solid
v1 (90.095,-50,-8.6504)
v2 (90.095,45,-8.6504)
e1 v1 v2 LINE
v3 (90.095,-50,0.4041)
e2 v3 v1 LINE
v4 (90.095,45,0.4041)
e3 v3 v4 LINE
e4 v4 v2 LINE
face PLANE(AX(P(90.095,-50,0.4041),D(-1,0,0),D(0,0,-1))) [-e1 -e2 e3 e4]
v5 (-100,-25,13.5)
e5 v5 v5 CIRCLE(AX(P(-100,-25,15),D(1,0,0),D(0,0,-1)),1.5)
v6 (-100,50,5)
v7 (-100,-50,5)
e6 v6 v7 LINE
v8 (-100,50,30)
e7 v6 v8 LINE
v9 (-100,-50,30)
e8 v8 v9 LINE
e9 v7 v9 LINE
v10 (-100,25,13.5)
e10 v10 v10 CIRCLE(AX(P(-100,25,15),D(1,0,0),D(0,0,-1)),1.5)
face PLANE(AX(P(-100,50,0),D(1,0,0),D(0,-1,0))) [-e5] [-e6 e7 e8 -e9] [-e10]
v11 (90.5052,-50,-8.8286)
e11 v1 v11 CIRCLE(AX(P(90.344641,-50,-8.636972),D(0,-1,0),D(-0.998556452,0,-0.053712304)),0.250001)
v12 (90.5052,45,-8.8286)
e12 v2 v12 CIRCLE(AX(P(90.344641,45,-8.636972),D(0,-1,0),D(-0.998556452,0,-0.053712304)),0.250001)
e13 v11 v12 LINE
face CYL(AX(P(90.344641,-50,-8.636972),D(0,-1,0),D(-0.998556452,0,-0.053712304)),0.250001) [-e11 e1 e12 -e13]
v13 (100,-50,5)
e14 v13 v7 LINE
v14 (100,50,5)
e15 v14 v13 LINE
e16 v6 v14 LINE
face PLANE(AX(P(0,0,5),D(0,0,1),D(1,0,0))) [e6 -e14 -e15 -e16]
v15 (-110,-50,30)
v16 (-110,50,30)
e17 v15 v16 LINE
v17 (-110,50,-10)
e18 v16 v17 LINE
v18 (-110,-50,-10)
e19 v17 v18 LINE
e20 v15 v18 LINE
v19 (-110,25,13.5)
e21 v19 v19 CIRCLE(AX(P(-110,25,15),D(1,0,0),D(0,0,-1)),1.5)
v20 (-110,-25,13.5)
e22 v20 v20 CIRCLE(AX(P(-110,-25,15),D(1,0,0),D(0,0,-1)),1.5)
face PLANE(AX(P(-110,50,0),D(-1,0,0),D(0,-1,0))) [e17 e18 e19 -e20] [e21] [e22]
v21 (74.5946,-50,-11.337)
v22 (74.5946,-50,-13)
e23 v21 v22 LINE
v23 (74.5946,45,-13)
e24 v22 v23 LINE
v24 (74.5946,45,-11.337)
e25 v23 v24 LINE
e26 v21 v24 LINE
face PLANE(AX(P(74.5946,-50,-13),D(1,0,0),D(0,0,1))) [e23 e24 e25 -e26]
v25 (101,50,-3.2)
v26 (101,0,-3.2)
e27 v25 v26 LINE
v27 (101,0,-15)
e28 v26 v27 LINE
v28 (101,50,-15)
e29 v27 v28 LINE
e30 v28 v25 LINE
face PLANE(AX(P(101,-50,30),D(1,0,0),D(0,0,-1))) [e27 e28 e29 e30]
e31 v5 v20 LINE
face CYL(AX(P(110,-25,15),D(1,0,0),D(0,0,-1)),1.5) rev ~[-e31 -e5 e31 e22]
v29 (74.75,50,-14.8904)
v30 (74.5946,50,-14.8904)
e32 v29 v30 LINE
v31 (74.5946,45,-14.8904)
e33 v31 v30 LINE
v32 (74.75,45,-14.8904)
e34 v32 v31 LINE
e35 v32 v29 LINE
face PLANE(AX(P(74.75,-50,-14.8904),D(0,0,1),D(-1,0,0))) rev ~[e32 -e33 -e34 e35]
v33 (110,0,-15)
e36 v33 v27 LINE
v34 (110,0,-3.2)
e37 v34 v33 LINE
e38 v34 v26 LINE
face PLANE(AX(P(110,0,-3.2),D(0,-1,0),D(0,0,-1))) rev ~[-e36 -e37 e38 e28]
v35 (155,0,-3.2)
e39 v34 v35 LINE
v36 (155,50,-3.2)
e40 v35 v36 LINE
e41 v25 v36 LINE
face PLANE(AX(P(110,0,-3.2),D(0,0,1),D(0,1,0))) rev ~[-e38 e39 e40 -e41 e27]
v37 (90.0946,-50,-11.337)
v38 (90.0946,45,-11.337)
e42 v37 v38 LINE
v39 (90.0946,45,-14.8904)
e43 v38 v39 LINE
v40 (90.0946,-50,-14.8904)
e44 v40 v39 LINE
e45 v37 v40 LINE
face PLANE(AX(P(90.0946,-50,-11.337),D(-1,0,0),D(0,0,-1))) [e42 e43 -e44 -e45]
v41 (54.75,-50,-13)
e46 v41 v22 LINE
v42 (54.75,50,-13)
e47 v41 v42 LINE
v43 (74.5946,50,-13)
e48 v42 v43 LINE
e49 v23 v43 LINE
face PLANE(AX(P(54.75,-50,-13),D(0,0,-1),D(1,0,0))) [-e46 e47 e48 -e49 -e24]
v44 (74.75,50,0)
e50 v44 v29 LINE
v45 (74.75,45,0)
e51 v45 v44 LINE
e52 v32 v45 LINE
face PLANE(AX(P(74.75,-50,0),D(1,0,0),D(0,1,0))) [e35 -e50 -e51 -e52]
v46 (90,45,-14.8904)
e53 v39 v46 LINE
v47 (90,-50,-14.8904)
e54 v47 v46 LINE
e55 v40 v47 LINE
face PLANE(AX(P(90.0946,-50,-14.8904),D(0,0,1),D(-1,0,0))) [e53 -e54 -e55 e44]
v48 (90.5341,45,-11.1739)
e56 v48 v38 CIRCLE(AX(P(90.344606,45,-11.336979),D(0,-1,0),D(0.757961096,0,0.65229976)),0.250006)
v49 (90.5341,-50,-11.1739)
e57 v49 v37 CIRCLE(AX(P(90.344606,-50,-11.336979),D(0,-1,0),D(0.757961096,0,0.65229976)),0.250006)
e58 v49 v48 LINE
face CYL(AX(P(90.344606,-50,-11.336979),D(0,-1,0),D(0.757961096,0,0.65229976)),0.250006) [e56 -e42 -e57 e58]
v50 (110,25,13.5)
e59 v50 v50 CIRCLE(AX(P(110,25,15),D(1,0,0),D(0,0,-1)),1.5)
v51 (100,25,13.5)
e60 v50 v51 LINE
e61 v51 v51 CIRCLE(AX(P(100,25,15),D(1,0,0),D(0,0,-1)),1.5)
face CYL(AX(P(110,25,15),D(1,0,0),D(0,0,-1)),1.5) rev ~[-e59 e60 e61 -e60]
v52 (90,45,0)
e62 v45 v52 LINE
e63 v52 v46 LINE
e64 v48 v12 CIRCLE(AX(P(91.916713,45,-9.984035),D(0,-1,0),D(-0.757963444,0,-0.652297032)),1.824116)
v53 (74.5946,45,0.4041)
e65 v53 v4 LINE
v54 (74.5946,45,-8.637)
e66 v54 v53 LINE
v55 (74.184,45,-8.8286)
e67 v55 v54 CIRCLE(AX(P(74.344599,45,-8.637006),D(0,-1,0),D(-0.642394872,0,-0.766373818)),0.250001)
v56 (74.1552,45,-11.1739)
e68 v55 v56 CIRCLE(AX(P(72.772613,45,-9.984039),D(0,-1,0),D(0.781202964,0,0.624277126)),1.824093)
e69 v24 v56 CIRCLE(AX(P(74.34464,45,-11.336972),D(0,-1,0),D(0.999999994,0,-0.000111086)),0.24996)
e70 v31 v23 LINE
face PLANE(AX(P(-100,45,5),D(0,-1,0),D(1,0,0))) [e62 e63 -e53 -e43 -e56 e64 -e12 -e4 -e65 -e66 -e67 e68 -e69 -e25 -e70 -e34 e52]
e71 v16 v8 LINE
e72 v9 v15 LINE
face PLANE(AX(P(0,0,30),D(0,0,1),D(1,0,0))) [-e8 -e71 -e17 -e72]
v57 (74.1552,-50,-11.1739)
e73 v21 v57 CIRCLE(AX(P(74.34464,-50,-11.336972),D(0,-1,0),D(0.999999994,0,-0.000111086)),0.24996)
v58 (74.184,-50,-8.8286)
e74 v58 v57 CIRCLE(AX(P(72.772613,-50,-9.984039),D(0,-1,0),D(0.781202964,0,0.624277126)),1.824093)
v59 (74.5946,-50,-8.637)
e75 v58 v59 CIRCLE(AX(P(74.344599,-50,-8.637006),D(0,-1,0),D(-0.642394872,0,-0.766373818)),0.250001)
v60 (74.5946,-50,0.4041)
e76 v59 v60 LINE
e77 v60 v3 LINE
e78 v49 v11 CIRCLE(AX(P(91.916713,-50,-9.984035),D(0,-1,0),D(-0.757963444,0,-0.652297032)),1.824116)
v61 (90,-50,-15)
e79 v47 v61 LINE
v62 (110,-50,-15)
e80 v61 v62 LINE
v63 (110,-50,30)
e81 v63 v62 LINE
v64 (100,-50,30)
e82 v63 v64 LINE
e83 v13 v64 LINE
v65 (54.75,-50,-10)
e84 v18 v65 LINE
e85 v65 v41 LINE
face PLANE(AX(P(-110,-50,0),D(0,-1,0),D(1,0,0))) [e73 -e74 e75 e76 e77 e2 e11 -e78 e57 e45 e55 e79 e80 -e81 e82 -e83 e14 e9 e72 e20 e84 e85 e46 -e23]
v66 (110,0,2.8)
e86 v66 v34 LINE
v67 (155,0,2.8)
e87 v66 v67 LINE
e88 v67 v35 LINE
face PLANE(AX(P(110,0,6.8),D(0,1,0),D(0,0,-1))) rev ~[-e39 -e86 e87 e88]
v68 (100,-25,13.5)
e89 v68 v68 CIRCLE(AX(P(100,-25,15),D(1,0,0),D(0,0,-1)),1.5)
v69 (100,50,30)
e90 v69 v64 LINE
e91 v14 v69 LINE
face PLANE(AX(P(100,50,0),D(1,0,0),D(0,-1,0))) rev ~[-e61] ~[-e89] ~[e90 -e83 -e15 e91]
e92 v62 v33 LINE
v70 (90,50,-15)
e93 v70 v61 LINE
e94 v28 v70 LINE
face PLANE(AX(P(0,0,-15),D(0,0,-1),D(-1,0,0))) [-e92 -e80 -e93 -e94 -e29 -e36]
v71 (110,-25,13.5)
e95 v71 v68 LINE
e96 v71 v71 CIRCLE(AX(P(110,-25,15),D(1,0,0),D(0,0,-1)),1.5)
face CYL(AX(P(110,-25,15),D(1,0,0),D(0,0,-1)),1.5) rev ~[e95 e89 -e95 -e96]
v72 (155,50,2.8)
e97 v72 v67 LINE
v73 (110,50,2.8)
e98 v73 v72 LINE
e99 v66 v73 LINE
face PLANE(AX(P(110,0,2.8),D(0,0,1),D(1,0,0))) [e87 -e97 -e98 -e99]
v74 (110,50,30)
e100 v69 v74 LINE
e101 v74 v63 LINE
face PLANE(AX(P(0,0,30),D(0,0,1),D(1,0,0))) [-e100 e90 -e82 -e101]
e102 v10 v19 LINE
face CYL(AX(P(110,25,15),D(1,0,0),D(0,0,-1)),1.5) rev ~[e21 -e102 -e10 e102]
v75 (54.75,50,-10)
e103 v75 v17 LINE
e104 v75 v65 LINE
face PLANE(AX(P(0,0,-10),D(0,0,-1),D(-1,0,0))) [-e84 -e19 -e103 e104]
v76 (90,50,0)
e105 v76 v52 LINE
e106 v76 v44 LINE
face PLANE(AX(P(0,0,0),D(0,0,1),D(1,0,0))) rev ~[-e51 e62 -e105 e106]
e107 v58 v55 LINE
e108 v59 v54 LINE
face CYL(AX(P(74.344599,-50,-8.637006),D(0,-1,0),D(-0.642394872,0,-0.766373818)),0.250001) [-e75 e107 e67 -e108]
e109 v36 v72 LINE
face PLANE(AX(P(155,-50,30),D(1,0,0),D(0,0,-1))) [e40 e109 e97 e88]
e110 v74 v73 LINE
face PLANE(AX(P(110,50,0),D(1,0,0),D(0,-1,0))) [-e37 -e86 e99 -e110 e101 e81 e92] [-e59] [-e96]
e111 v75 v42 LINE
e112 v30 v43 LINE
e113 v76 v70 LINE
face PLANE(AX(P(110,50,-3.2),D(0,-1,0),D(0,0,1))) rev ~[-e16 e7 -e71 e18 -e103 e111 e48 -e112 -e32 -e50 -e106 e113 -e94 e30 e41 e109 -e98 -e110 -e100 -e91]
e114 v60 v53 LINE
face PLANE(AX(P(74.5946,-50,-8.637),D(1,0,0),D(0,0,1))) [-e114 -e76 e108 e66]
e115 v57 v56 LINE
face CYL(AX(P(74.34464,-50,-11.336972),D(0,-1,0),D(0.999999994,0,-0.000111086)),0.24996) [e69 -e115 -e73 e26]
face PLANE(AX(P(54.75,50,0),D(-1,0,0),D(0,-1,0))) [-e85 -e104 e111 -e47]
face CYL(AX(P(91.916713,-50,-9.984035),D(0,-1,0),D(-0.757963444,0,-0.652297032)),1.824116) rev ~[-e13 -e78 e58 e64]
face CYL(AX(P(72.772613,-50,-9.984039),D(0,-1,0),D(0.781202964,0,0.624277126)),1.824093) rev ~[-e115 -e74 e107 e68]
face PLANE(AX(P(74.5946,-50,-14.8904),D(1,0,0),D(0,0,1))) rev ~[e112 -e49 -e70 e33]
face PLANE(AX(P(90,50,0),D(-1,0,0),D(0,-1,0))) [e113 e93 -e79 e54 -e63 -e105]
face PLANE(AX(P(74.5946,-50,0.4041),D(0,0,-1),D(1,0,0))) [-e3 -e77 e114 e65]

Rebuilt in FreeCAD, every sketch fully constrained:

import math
import FreeCAD as App
import Part
import Sketcher

doc = App.newDocument("Part")
params = doc.addObject("Spreadsheet::Sheet", "Params")
for row, (alias, value) in enumerate([
    ("sketch1_height", "100 mm"),
    ("pad1_length", "5 mm"),
    ("sketch2_width", "10 mm"),
    ("sketch2_height", "100 mm"),
    ("pad2_length", "30 mm"),
    ("sketch3_diameter", "3 mm"),
    ("pocket1_length", "300 mm"),
    ("sketch4_width", "20 mm"),
    ("sketch4_height", "100 mm"),
    ("pad3_length", "15 mm"),
    ("sketch5_radius", "0.25 mm"),
    ("sketch5_width", "15.25 mm"),
    ("pocket2_length", "95 mm"),
    ("sketch6_height", "100 mm"),
    ("sketch6_width", "164.75 mm"),
    ("pad4_length", "10 mm"),
    ("sketch7_height", "2 mm"),
    ("sketch7_width", "20 mm"),
    ("pocket3_length", "100 mm"),
    ("sketch8_height", "11.8 mm"),
    ("sketch8_width", "50 mm"),
    ("pocket4_length", "9 mm"),
    ("sketch9_height", "10 mm"),
    ("sketch9_width", "50 mm"),
    ("pad5_length", "45 mm"),
    ("sketch10_width", "45 mm"),
    ("sketch10_height", "50 mm"),
    ("pocket5_length", "4 mm"),
], start=1):
    params.set(f"A{row}", alias)
    params.set(f"B{row}", "=" + value)
    params.setAlias(f"B{row}", alias)

body = doc.addObject("PartDesign::Body", "Body")

# Sketch on XY plane
sketch1 = body.newObject("Sketcher::SketchObject", "Sketch")
sketch1.AttachmentSupport = (doc.getObject("XY_Plane"), [""])
sketch1.MapMode = "FlatFace"
sketch1.addGeometry(Part.LineSegment(App.Vector(100, 50, 0), App.Vector(-100, 50, 0)), False)
sketch1.addGeometry(Part.LineSegment(App.Vector(-100, 50, 0), App.Vector(-100, -50, 0)), False)
sketch1.addGeometry(Part.LineSegment(App.Vector(-100, -50, 0), App.Vector(100, -50, 0)), False)
sketch1.addGeometry(Part.LineSegment(App.Vector(100, -50, 0), App.Vector(100, 50, 0)), False)
sketch1.addConstraint(Sketcher.Constraint("Coincident", 0, 2, 1, 1))
sketch1.addConstraint(Sketcher.Constraint("Coincident", 1, 2, 2, 1))
sketch1.addConstraint(Sketcher.Constraint("Coincident", 2, 2, 3, 1))
sketch1.addConstraint(Sketcher.Constraint("Coincident", 3, 2, 0, 1))
sketch1.addConstraint(Sketcher.Constraint("Horizontal", 0))
sketch1.addConstraint(Sketcher.Constraint("Vertical", 1))
sketch1.addConstraint(Sketcher.Constraint("Horizontal", 2))
sketch1.addConstraint(Sketcher.Constraint("Vertical", 3))
sketch1.addConstraint(Sketcher.Constraint("Symmetric", 0, 2, 2, 2, -1, 1))
sketch1.addConstraint(Sketcher.Constraint("DistanceY", 1, 2, 1, 1, 100.0))
sketch1.addConstraint(Sketcher.Constraint("DistanceX", 0, 2, -1, 1, 100.0))
sketch1.setExpression("Constraints[9]", "Params.sketch1_height")
pad1 = body.newObject("PartDesign::Pad", "Pad")
pad1.Profile = sketch1
pad1.setExpression("Length", "Params.pad1_length")

# Sketch on XY plane
sketch2 = body.newObject("Sketcher::SketchObject", "Sketch001")
sketch2.AttachmentSupport = (doc.getObject("XY_Plane"), [""])
sketch2.MapMode = "FlatFace"
sketch2.addGeometry(Part.LineSegment(App.Vector(-100, 50, 0), App.Vector(-110, 50, 0)), False)
sketch2.addGeometry(Part.LineSegment(App.Vector(-110, 50, 0), App.Vector(-110, -50, 0)), False)
sketch2.addGeometry(Part.LineSegment(App.Vector(-110, -50, 0), App.Vector(-100, -50, 0)), False)
sketch2.addGeometry(Part.LineSegment(App.Vector(-100, -50, 0), App.Vector(-100, 50, 0)), False)
sketch2.addGeometry(Part.LineSegment(App.Vector(110, 50, 0), App.Vector(100, 50, 0)), False)
sketch2.addGeometry(Part.LineSegment(App.Vector(100, 50, 0), App.Vector(100, -50, 0)), False)
sketch2.addGeometry(Part.LineSegment(App.Vector(100, -50, 0), App.Vector(110, -50, 0)), False)
sketch2.addGeometry(Part.LineSegment(App.Vector(110, -50, 0), App.Vector(110, 50, 0)), False)
sketch2.addConstraint(Sketcher.Constraint("Coincident", 0, 2, 1, 1))
sketch2.addConstraint(Sketcher.Constraint("Coincident", 1, 2, 2, 1))
sketch2.addConstraint(Sketcher.Constraint("Coincident", 2, 2, 3, 1))
sketch2.addConstraint(Sketcher.Constraint("Coincident", 3, 2, 0, 1))
sketch2.addConstraint(Sketcher.Constraint("Coincident", 4, 2, 5, 1))
sketch2.addConstraint(Sketcher.Constraint("Coincident", 5, 2, 6, 1))
sketch2.addConstraint(Sketcher.Constraint("Coincident", 6, 2, 7, 1))
sketch2.addConstraint(Sketcher.Constraint("Coincident", 7, 2, 4, 1))
sketch2.addConstraint(Sketcher.Constraint("Horizontal", 0))
sketch2.addConstraint(Sketcher.Constraint("Vertical", 1))
sketch2.addConstraint(Sketcher.Constraint("Horizontal", 2))
sketch2.addConstraint(Sketcher.Constraint("Vertical", 3))
sketch2.addConstraint(Sketcher.Constraint("Horizontal", 4))
sketch2.addConstraint(Sketcher.Constraint("Vertical", 5))
sketch2.addConstraint(Sketcher.Constraint("Horizontal", 6))
sketch2.addConstraint(Sketcher.Constraint("Vertical", 7))
sketch2.addConstraint(Sketcher.Constraint("Symmetric", 2, 2, 4, 2, -1, 1))
sketch2.addConstraint(Sketcher.Constraint("Symmetric", 0, 2, 6, 2, -1, 1))
sketch2.addConstraint(Sketcher.Constraint("Horizontal", 3, 2, 4, 2))
sketch2.addConstraint(Sketcher.Constraint("DistanceX", 0, 2, 0, 1, 10.0))
sketch2.addConstraint(Sketcher.Constraint("DistanceY", 1, 2, 1, 1, 100.0))
sketch2.addConstraint(Sketcher.Constraint("DistanceX", 2, 2, -1, 1, 100.0))
sketch2.setExpression("Constraints[19]", "Params.sketch2_width")
sketch2.setExpression("Constraints[20]", "Params.sketch2_height")
pad2 = body.newObject("PartDesign::Pad", "Pad001")
pad2.Profile = sketch2
pad2.setExpression("Length", "Params.pad2_length")

# Sketch on YZ plane
sketch3 = body.newObject("Sketcher::SketchObject", "Sketch002")
sketch3.AttachmentSupport = (doc.getObject("YZ_Plane"), [""])
sketch3.MapMode = "FlatFace"
sketch3.AttachmentOffset = App.Placement(App.Vector(0, 0, 110), App.Rotation())
sketch3.addGeometry(Part.Circle(App.Vector(25, 15, 0), App.Vector(0, 0, 1), 1.5), False)
sketch3.addGeometry(Part.Circle(App.Vector(-25, 15, 0), App.Vector(0, 0, 1), 1.5), False)
sketch3.addConstraint(Sketcher.Constraint("Equal", 0, 1))
sketch3.addConstraint(Sketcher.Constraint("Symmetric", 0, 3, 1, 3, -2))
sketch3.addConstraint(Sketcher.Constraint("Diameter", 0, 3.0))
sketch3.addConstraint(Sketcher.Constraint("DistanceX", -1, 1, 0, 3, 25.0))
sketch3.addConstraint(Sketcher.Constraint("DistanceY", -1, 1, 0, 3, 15.0))
sketch3.setExpression("Constraints[2]", "Params.sketch3_diameter")
pocket1 = body.newObject("PartDesign::Pocket", "Pocket")
pocket1.Profile = sketch3
pocket1.setExpression("Length", "Params.pocket1_length")

# Sketch on XY plane
sketch4 = body.newObject("Sketcher::SketchObject", "Sketch003")
sketch4.AttachmentSupport = (doc.getObject("XY_Plane"), [""])
sketch4.MapMode = "FlatFace"
sketch4.addGeometry(Part.LineSegment(App.Vector(90, 50, 0), App.Vector(110, 50, 0)), False)
sketch4.addGeometry(Part.LineSegment(App.Vector(110, 50, 0), App.Vector(110, -50, 0)), False)
sketch4.addGeometry(Part.LineSegment(App.Vector(110, -50, 0), App.Vector(90, -50, 0)), False)
sketch4.addGeometry(Part.LineSegment(App.Vector(90, -50, 0), App.Vector(90, 50, 0)), False)
sketch4.addGeometry(Part.LineSegment(App.Vector(54.75, 50, 0), App.Vector(74.75, 50, 0)), False)
sketch4.addGeometry(Part.LineSegment(App.Vector(74.75, 50, 0), App.Vector(74.75, -50, 0)), False)
sketch4.addGeometry(Part.LineSegment(App.Vector(74.75, -50, 0), App.Vector(54.75, -50, 0)), False)
sketch4.addGeometry(Part.LineSegment(App.Vector(54.75, -50, 0), App.Vector(54.75, 50, 0)), False)
sketch4.addConstraint(Sketcher.Constraint("Coincident", 0, 2, 1, 1))
sketch4.addConstraint(Sketcher.Constraint("Coincident", 1, 2, 2, 1))
sketch4.addConstraint(Sketcher.Constraint("Coincident", 2, 2, 3, 1))
sketch4.addConstraint(Sketcher.Constraint("Coincident", 3, 2, 0, 1))
sketch4.addConstraint(Sketcher.Constraint("Coincident", 4, 2, 5, 1))
sketch4.addConstraint(Sketcher.Constraint("Coincident", 5, 2, 6, 1))
sketch4.addConstraint(Sketcher.Constraint("Coincident", 6, 2, 7, 1))
sketch4.addConstraint(Sketcher.Constraint("Coincident", 7, 2, 4, 1))
sketch4.addConstraint(Sketcher.Constraint("Horizontal", 0))
sketch4.addConstraint(Sketcher.Constraint("Vertical", 1))
sketch4.addConstraint(Sketcher.Constraint("Horizontal", 2))
sketch4.addConstraint(Sketcher.Constraint("Vertical", 3))
sketch4.addConstraint(Sketcher.Constraint("Horizontal", 4))
sketch4.addConstraint(Sketcher.Constraint("Vertical", 5))
sketch4.addConstraint(Sketcher.Constraint("Horizontal", 6))
sketch4.addConstraint(Sketcher.Constraint("Vertical", 7))
sketch4.addConstraint(Sketcher.Constraint("Horizontal", 3, 2, 4, 2))
sketch4.addConstraint(Sketcher.Constraint("Horizontal", 2, 2, 5, 2))
sketch4.addConstraint(Sketcher.Constraint("Equal", 2, 4))
sketch4.addConstraint(Sketcher.Constraint("DistanceX", 0, 1, 0, 2, 20.0))
sketch4.addConstraint(Sketcher.Constraint("DistanceY", 1, 2, 1, 1, 100.0))
sketch4.addConstraint(Sketcher.Constraint("DistanceX", 4, 2, 3, 2, 15.25))
sketch4.addConstraint(Sketcher.Constraint("DistanceX", -1, 1, 0, 2, 110.0))
sketch4.addConstraint(Sketcher.Constraint("DistanceY", -1, 1, 0, 2, 50.0))
sketch4.setExpression("Constraints[19]", "Params.sketch4_width")
sketch4.setExpression("Constraints[20]", "Params.sketch4_height")
pad3 = body.newObject("PartDesign::Pad", "Pad002")
pad3.Profile = sketch4
pad3.setExpression("Length", "Params.pad3_length")
pad3.Reversed = True

# Sketch on XZ plane
sketch5 = body.newObject("Sketcher::SketchObject", "Sketch004")
sketch5.AttachmentSupport = (doc.getObject("XZ_Plane"), [""])
sketch5.MapMode = "FlatFace"
sketch5.AttachmentOffset = App.Placement(App.Vector(0, 0, 50), App.Rotation())
sketch5.addGeometry(Part.LineSegment(App.Vector(74.75, 0, 0), App.Vector(90, 0, 0)), False)
sketch5.addGeometry(Part.LineSegment(App.Vector(90, 0, 0), App.Vector(90, -14.8904, 0)), False)
sketch5.addGeometry(Part.LineSegment(App.Vector(90, -14.8904, 0), App.Vector(90.0946, -14.8904, 0)), False)
sketch5.addGeometry(Part.LineSegment(App.Vector(90.0946, -14.8904, 0), App.Vector(90.0946, -11.337, 0)), False)
sketch5.addGeometry(Part.ArcOfCircle(Part.Circle(App.Vector(90.3446, -11.337, 0), App.Vector(0, 0, 1), 0.250024), math.radians(40.718118), math.radians(180)), False)
sketch5.addGeometry(Part.ArcOfCircle(Part.Circle(App.Vector(91.9167, -9.984, 0), App.Vector(0, 0, 1), 1.824128), math.radians(-139.283893), math.radians(140.697554)), False)
sketch5.addGeometry(Part.ArcOfCircle(Part.Circle(App.Vector(90.3446, -8.637, 0), App.Vector(0, 0, 1), 0.249959), math.radians(-176.926975), math.radians(-50.030107)), False)
sketch5.addGeometry(Part.LineSegment(App.Vector(90.095, -8.6504, 0), App.Vector(90.095, 0.4041, 0)), False)
sketch5.addGeometry(Part.LineSegment(App.Vector(90.095, 0.4041, 0), App.Vector(74.5946, 0.4041, 0)), False)
sketch5.addGeometry(Part.LineSegment(App.Vector(74.5946, 0.4041, 0), App.Vector(74.5946, -8.637, 0)), False)
sketch5.addGeometry(Part.ArcOfCircle(Part.Circle(App.Vector(74.3446, -8.637, 0), App.Vector(0, 0, 1), 0.250006), math.radians(-129.969893), math.radians(0)), False)
sketch5.addGeometry(Part.ArcOfCircle(Part.Circle(App.Vector(72.7726, -9.984, 0), App.Vector(0, 0, 1), 1.824079), math.radians(39.304436), math.radians(319.283893)), False)
sketch5.addGeometry(Part.ArcOfCircle(Part.Circle(App.Vector(74.3446, -11.337, 0), App.Vector(0, 0, 1), 0.25), math.radians(0), math.radians(139.266928)), False)
sketch5.addGeometry(Part.LineSegment(App.Vector(74.5946, -11.337, 0), App.Vector(74.5946, -14.8904, 0)), False)
sketch5.addGeometry(Part.LineSegment(App.Vector(74.5946, -14.8904, 0), App.Vector(74.75, -14.8904, 0)), False)
sketch5.addGeometry(Part.LineSegment(App.Vector(74.75, -14.8904, 0), App.Vector(74.75, 0, 0)), False)
sketch5.addConstraint(Sketcher.Constraint("Coincident", 0, 2, 1, 1))
sketch5.addConstraint(Sketcher.Constraint("Coincident", 1, 2, 2, 1))
sketch5.addConstraint(Sketcher.Constraint("Coincident", 2, 2, 3, 1))
sketch5.addConstraint(Sketcher.Constraint("Tangent", 3, 2, 4, 2))
sketch5.addConstraint(Sketcher.Constraint("Tangent", 4, 1, 5, 1))
sketch5.addConstraint(Sketcher.Constraint("Coincident", 5, 2, 6, 2))
sketch5.addConstraint(Sketcher.Constraint("Coincident", 6, 1, 7, 1))
sketch5.addConstraint(Sketcher.Constraint("Coincident", 7, 2, 8, 1))
sketch5.addConstraint(Sketcher.Constraint("Coincident", 8, 2, 9, 1))
sketch5.addConstraint(Sketcher.Constraint("Tangent", 9, 2, 10, 2))
sketch5.addConstraint(Sketcher.Constraint("Coincident", 10, 1, 11, 1))
sketch5.addConstraint(Sketcher.Constraint("Tangent", 11, 2, 12, 2))
sketch5.addConstraint(Sketcher.Constraint("Tangent", 12, 1, 13, 1))
sketch5.addConstraint(Sketcher.Constraint("Coincident", 13, 2, 14, 1))
sketch5.addConstraint(Sketcher.Constraint("Coincident", 14, 2, 15, 1))
sketch5.addConstraint(Sketcher.Constraint("Coincident", 15, 2, 0, 1))
sketch5.addConstraint(Sketcher.Constraint("Horizontal", 0))
sketch5.addConstraint(Sketcher.Constraint("Vertical", 1))
sketch5.addConstraint(Sketcher.Constraint("Horizontal", 2))
sketch5.addConstraint(Sketcher.Constraint("Vertical", 3))
sketch5.addConstraint(Sketcher.Constraint("Vertical", 7))
sketch5.addConstraint(Sketcher.Constraint("Horizontal", 8))
sketch5.addConstraint(Sketcher.Constraint("Vertical", 9))
sketch5.addConstraint(Sketcher.Constraint("Vertical", 13))
sketch5.addConstraint(Sketcher.Constraint("Horizontal", 14))
sketch5.addConstraint(Sketcher.Constraint("Vertical", 15))
sketch5.addConstraint(Sketcher.Constraint("Equal", 4, 6))
sketch5.addConstraint(Sketcher.Constraint("Equal", 6, 10))
sketch5.addConstraint(Sketcher.Constraint("Equal", 5, 11))
sketch5.addConstraint(Sketcher.Constraint("Equal", 10, 12))
sketch5.addConstraint(Sketcher.Constraint("PointOnObject", 0, 2, -1))
sketch5.addConstraint(Sketcher.Constraint("Horizontal", 6, 3, 10, 3))
sketch5.addConstraint(Sketcher.Constraint("Horizontal", 5, 3, 11, 3))
sketch5.addConstraint(Sketcher.Constraint("Horizontal", 4, 3, 12, 3))
sketch5.addConstraint(Sketcher.Constraint("Horizontal", 5, 2, 10, 1))
sketch5.addConstraint(Sketcher.Constraint("Horizontal", 2, 2, 13, 2))
sketch5.addConstraint(Sketcher.Constraint("Vertical", 4, 3, 6, 3))
sketch5.addConstraint(Sketcher.Constraint("Radius", 4, 0.25))
sketch5.addConstraint(Sketcher.Constraint("DistanceX", -1, 1, 0, 2, 90.0))
sketch5.addConstraint(Sketcher.Constraint("Radius", 11, 1.824))
sketch5.addConstraint(Sketcher.Constraint("DistanceX", 10, 3, 6, 3, 16.0))
sketch5.addConstraint(Sketcher.Constraint("DistanceX", 0, 1, 0, 2, 15.25))
sketch5.addConstraint(Sketcher.Constraint("DistanceY", 4, 3, 6, 3, 2.7))
sketch5.addConstraint(Sketcher.Constraint("DistanceY", 9, 2, 9, 1, 9.041))
sketch5.addConstraint(Sketcher.Constraint("DistanceY", 4, 1, 5, 3, 1.19))
sketch5.addConstraint(Sketcher.Constraint("DistanceX", 2, 1, 2, 2, 0.0946))
sketch5.addConstraint(Sketcher.Constraint("DistanceX", 8, 2, 8, 1, 15.5004))
sketch5.addConstraint(Sketcher.Constraint("DistanceY", 1, 2, 1, 1, 14.8904))
sketch5.addConstraint(Sketcher.Constraint("DistanceY", 3, 1, 3, 2, 3.5534))
sketch5.setExpression("Constraints[37]", "Params.sketch5_radius")
sketch5.setExpression("Constraints[41]", "Params.sketch5_width")
pocket2 = body.newObject("PartDesign::Pocket", "Pocket001")
pocket2.Profile = sketch5
pocket2.setExpression("Length", "Params.pocket2_length")

# Sketch on XY plane
sketch6 = body.newObject("Sketcher::SketchObject", "Sketch005")
sketch6.AttachmentSupport = (doc.getObject("XY_Plane"), [""])
sketch6.MapMode = "FlatFace"
sketch6.addGeometry(Part.LineSegment(App.Vector(54.75, -50, 0), App.Vector(-110, -50, 0)), False)
sketch6.addGeometry(Part.LineSegment(App.Vector(-110, -50, 0), App.Vector(-110, 50, 0)), False)
sketch6.addGeometry(Part.LineSegment(App.Vector(-110, 50, 0), App.Vector(54.75, 50, 0)), False)
sketch6.addGeometry(Part.LineSegment(App.Vector(54.75, 50, 0), App.Vector(54.75, -50, 0)), False)
sketch6.addConstraint(Sketcher.Constraint("Coincident", 0, 2, 1, 1))
sketch6.addConstraint(Sketcher.Constraint("Coincident", 1, 2, 2, 1))
sketch6.addConstraint(Sketcher.Constraint("Coincident", 2, 2, 3, 1))
sketch6.addConstraint(Sketcher.Constraint("Coincident", 3, 2, 0, 1))
sketch6.addConstraint(Sketcher.Constraint("Horizontal", 0))
sketch6.addConstraint(Sketcher.Constraint("Vertical", 1))
sketch6.addConstraint(Sketcher.Constraint("Horizontal", 2))
sketch6.addConstraint(Sketcher.Constraint("Vertical", 3))
sketch6.addConstraint(Sketcher.Constraint("DistanceY", 1, 1, 1, 2, 100.0))
sketch6.addConstraint(Sketcher.Constraint("DistanceX", 0, 2, -1, 1, 110.0))
sketch6.addConstraint(Sketcher.Constraint("DistanceY", 0, 2, -1, 1, 50.0))
sketch6.addConstraint(Sketcher.Constraint("DistanceX", 0, 2, 0, 1, 164.75))
sketch6.setExpression("Constraints[8]", "Params.sketch6_height")
sketch6.setExpression("Constraints[11]", "Params.sketch6_width")
pad4 = body.newObject("PartDesign::Pad", "Pad003")
pad4.Profile = sketch6
pad4.setExpression("Length", "Params.pad4_length")
pad4.Reversed = True

# Sketch on XZ plane
sketch7 = body.newObject("Sketcher::SketchObject", "Sketch006")
sketch7.AttachmentSupport = (doc.getObject("XZ_Plane"), [""])
sketch7.MapMode = "FlatFace"
sketch7.AttachmentOffset = App.Placement(App.Vector(0, 0, 50), App.Rotation())
sketch7.addGeometry(Part.LineSegment(App.Vector(74.75, -15, 0), App.Vector(74.75, -14.8904, 0)), False)
sketch7.addGeometry(Part.LineSegment(App.Vector(74.75, -14.8904, 0), App.Vector(74.5946, -14.8904, 0)), False)
sketch7.addGeometry(Part.LineSegment(App.Vector(74.5946, -14.8904, 0), App.Vector(74.5946, -13, 0)), False)
sketch7.addGeometry(Part.LineSegment(App.Vector(74.5946, -13, 0), App.Vector(54.75, -13, 0)), False)
sketch7.addGeometry(Part.LineSegment(App.Vector(54.75, -13, 0), App.Vector(54.75, -15, 0)), False)
sketch7.addGeometry(Part.LineSegment(App.Vector(54.75, -15, 0), App.Vector(74.75, -15, 0)), False)
sketch7.addConstraint(Sketcher.Constraint("Coincident", 0, 2, 1, 1))
sketch7.addConstraint(Sketcher.Constraint("Coincident", 1, 2, 2, 1))
sketch7.addConstraint(Sketcher.Constraint("Coincident", 2, 2, 3, 1))
sketch7.addConstraint(Sketcher.Constraint("Coincident", 3, 2, 4, 1))
sketch7.addConstraint(Sketcher.Constraint("Coincident", 4, 2, 5, 1))
sketch7.addConstraint(Sketcher.Constraint("Coincident", 5, 2, 0, 1))
sketch7.addConstraint(Sketcher.Constraint("Vertical", 0))
sketch7.addConstraint(Sketcher.Constraint("Horizontal", 1))
sketch7.addConstraint(Sketcher.Constraint("Vertical", 2))
sketch7.addConstraint(Sketcher.Constraint("Horizontal", 3))
sketch7.addConstraint(Sketcher.Constraint("Vertical", 4))
sketch7.addConstraint(Sketcher.Constraint("Horizontal", 5))
sketch7.addConstraint(Sketcher.Constraint("DistanceY", 4, 2, 4, 1, 2.0))
sketch7.addConstraint(Sketcher.Constraint("DistanceX", 5, 1, 5, 2, 20.0))
sketch7.addConstraint(Sketcher.Constraint("DistanceY", 2, 2, -1, 1, 13.0))
sketch7.addConstraint(Sketcher.Constraint("DistanceX", -1, 1, 0, 2, 74.75))
sketch7.addConstraint(Sketcher.Constraint("DistanceX", 1, 2, 1, 1, 0.1554))
sketch7.addConstraint(Sketcher.Constraint("DistanceY", 0, 1, 0, 2, 0.1096))
sketch7.setExpression("Constraints[12]", "Params.sketch7_height")
sketch7.setExpression("Constraints[13]", "Params.sketch7_width")
pocket3 = body.newObject("PartDesign::Pocket", "Pocket002")
pocket3.Profile = sketch7
pocket3.setExpression("Length", "Params.pocket3_length")

# Sketch on YZ plane
sketch8 = body.newObject("Sketcher::SketchObject", "Sketch007")
sketch8.AttachmentSupport = (doc.getObject("YZ_Plane"), [""])
sketch8.MapMode = "FlatFace"
sketch8.AttachmentOffset = App.Placement(App.Vector(0, 0, 110), App.Rotation())
sketch8.addGeometry(Part.LineSegment(App.Vector(0, -15, 0), App.Vector(50, -15, 0)), False)
sketch8.addGeometry(Part.LineSegment(App.Vector(50, -15, 0), App.Vector(50, -3.2, 0)), False)
sketch8.addGeometry(Part.LineSegment(App.Vector(50, -3.2, 0), App.Vector(0, -3.2, 0)), False)
sketch8.addGeometry(Part.LineSegment(App.Vector(0, -3.2, 0), App.Vector(0, -15, 0)), False)
sketch8.addConstraint(Sketcher.Constraint("Coincident", 0, 2, 1, 1))
sketch8.addConstraint(Sketcher.Constraint("Coincident", 1, 2, 2, 1))
sketch8.addConstraint(Sketcher.Constraint("Coincident", 2, 2, 3, 1))
sketch8.addConstraint(Sketcher.Constraint("Coincident", 3, 2, 0, 1))
sketch8.addConstraint(Sketcher.Constraint("Horizontal", 0))
sketch8.addConstraint(Sketcher.Constraint("Vertical", 1))
sketch8.addConstraint(Sketcher.Constraint("Horizontal", 2))
sketch8.addConstraint(Sketcher.Constraint("Vertical", 3))
sketch8.addConstraint(Sketcher.Constraint("PointOnObject", 2, 2, -2))
sketch8.addConstraint(Sketcher.Constraint("DistanceY", 1, 1, 1, 2, 11.8))
sketch8.addConstraint(Sketcher.Constraint("DistanceX", 0, 1, 0, 2, 50.0))
sketch8.addConstraint(Sketcher.Constraint("DistanceY", 0, 2, -1, 1, 15.0))
sketch8.setExpression("Constraints[9]", "Params.sketch8_height")
sketch8.setExpression("Constraints[10]", "Params.sketch8_width")
pocket4 = body.newObject("PartDesign::Pocket", "Pocket003")
pocket4.Profile = sketch8
pocket4.setExpression("Length", "Params.pocket4_length")

# Sketch on YZ plane
sketch9 = body.newObject("Sketcher::SketchObject", "Sketch008")
sketch9.AttachmentSupport = (doc.getObject("YZ_Plane"), [""])
sketch9.MapMode = "FlatFace"
sketch9.AttachmentOffset = App.Placement(App.Vector(0, 0, 110), App.Rotation())
sketch9.addGeometry(Part.LineSegment(App.Vector(0, -3.2, 0), App.Vector(50, -3.2, 0)), False)
sketch9.addGeometry(Part.LineSegment(App.Vector(50, -3.2, 0), App.Vector(50, 6.8, 0)), False)
sketch9.addGeometry(Part.LineSegment(App.Vector(50, 6.8, 0), App.Vector(0, 6.8, 0)), False)
sketch9.addGeometry(Part.LineSegment(App.Vector(0, 6.8, 0), App.Vector(0, -3.2, 0)), False)
sketch9.addConstraint(Sketcher.Constraint("Coincident", 0, 2, 1, 1))
sketch9.addConstraint(Sketcher.Constraint("Coincident", 1, 2, 2, 1))
sketch9.addConstraint(Sketcher.Constraint("Coincident", 2, 2, 3, 1))
sketch9.addConstraint(Sketcher.Constraint("Coincident", 3, 2, 0, 1))
sketch9.addConstraint(Sketcher.Constraint("Horizontal", 0))
sketch9.addConstraint(Sketcher.Constraint("Vertical", 1))
sketch9.addConstraint(Sketcher.Constraint("Horizontal", 2))
sketch9.addConstraint(Sketcher.Constraint("Vertical", 3))
sketch9.addConstraint(Sketcher.Constraint("PointOnObject", 2, 2, -2))
sketch9.addConstraint(Sketcher.Constraint("DistanceY", 1, 1, 1, 2, 10.0))
sketch9.addConstraint(Sketcher.Constraint("DistanceX", 0, 1, 0, 2, 50.0))
sketch9.addConstraint(Sketcher.Constraint("DistanceY", 0, 2, -1, 1, 3.2))
sketch9.setExpression("Constraints[9]", "Params.sketch9_height")
sketch9.setExpression("Constraints[10]", "Params.sketch9_width")
pad5 = body.newObject("PartDesign::Pad", "Pad004")
pad5.Profile = sketch9
pad5.setExpression("Length", "Params.pad5_length")

# Sketch on XY plane
sketch10 = body.newObject("Sketcher::SketchObject", "Sketch009")
sketch10.AttachmentSupport = (doc.getObject("XY_Plane"), [""])
sketch10.MapMode = "FlatFace"
sketch10.AttachmentOffset = App.Placement(App.Vector(0, 0, 6.8), App.Rotation())
sketch10.addGeometry(Part.LineSegment(App.Vector(110, 50, 0), App.Vector(110, 0, 0)), False)
sketch10.addGeometry(Part.LineSegment(App.Vector(110, 0, 0), App.Vector(155, 0, 0)), False)
sketch10.addGeometry(Part.LineSegment(App.Vector(155, 0, 0), App.Vector(155, 50, 0)), False)
sketch10.addGeometry(Part.LineSegment(App.Vector(155, 50, 0), App.Vector(110, 50, 0)), False)
sketch10.addConstraint(Sketcher.Constraint("Coincident", 0, 2, 1, 1))
sketch10.addConstraint(Sketcher.Constraint("Coincident", 1, 2, 2, 1))
sketch10.addConstraint(Sketcher.Constraint("Coincident", 2, 2, 3, 1))
sketch10.addConstraint(Sketcher.Constraint("Coincident", 3, 2, 0, 1))
sketch10.addConstraint(Sketcher.Constraint("Vertical", 0))
sketch10.addConstraint(Sketcher.Constraint("Horizontal", 1))
sketch10.addConstraint(Sketcher.Constraint("Vertical", 2))
sketch10.addConstraint(Sketcher.Constraint("Horizontal", 3))
sketch10.addConstraint(Sketcher.Constraint("PointOnObject", 0, 2, -1))
sketch10.addConstraint(Sketcher.Constraint("DistanceX", 1, 1, 1, 2, 45.0))
sketch10.addConstraint(Sketcher.Constraint("DistanceY", 0, 2, 0, 1, 50.0))
sketch10.addConstraint(Sketcher.Constraint("DistanceX", -1, 1, 0, 2, 110.0))
sketch10.setExpression("Constraints[9]", "Params.sketch10_width")
sketch10.setExpression("Constraints[10]", "Params.sketch10_height")
pocket5 = body.newObject("PartDesign::Pocket", "Pocket004")
pocket5.Profile = sketch10
pocket5.setExpression("Length", "Params.pocket5_length")

doc.recompute()
